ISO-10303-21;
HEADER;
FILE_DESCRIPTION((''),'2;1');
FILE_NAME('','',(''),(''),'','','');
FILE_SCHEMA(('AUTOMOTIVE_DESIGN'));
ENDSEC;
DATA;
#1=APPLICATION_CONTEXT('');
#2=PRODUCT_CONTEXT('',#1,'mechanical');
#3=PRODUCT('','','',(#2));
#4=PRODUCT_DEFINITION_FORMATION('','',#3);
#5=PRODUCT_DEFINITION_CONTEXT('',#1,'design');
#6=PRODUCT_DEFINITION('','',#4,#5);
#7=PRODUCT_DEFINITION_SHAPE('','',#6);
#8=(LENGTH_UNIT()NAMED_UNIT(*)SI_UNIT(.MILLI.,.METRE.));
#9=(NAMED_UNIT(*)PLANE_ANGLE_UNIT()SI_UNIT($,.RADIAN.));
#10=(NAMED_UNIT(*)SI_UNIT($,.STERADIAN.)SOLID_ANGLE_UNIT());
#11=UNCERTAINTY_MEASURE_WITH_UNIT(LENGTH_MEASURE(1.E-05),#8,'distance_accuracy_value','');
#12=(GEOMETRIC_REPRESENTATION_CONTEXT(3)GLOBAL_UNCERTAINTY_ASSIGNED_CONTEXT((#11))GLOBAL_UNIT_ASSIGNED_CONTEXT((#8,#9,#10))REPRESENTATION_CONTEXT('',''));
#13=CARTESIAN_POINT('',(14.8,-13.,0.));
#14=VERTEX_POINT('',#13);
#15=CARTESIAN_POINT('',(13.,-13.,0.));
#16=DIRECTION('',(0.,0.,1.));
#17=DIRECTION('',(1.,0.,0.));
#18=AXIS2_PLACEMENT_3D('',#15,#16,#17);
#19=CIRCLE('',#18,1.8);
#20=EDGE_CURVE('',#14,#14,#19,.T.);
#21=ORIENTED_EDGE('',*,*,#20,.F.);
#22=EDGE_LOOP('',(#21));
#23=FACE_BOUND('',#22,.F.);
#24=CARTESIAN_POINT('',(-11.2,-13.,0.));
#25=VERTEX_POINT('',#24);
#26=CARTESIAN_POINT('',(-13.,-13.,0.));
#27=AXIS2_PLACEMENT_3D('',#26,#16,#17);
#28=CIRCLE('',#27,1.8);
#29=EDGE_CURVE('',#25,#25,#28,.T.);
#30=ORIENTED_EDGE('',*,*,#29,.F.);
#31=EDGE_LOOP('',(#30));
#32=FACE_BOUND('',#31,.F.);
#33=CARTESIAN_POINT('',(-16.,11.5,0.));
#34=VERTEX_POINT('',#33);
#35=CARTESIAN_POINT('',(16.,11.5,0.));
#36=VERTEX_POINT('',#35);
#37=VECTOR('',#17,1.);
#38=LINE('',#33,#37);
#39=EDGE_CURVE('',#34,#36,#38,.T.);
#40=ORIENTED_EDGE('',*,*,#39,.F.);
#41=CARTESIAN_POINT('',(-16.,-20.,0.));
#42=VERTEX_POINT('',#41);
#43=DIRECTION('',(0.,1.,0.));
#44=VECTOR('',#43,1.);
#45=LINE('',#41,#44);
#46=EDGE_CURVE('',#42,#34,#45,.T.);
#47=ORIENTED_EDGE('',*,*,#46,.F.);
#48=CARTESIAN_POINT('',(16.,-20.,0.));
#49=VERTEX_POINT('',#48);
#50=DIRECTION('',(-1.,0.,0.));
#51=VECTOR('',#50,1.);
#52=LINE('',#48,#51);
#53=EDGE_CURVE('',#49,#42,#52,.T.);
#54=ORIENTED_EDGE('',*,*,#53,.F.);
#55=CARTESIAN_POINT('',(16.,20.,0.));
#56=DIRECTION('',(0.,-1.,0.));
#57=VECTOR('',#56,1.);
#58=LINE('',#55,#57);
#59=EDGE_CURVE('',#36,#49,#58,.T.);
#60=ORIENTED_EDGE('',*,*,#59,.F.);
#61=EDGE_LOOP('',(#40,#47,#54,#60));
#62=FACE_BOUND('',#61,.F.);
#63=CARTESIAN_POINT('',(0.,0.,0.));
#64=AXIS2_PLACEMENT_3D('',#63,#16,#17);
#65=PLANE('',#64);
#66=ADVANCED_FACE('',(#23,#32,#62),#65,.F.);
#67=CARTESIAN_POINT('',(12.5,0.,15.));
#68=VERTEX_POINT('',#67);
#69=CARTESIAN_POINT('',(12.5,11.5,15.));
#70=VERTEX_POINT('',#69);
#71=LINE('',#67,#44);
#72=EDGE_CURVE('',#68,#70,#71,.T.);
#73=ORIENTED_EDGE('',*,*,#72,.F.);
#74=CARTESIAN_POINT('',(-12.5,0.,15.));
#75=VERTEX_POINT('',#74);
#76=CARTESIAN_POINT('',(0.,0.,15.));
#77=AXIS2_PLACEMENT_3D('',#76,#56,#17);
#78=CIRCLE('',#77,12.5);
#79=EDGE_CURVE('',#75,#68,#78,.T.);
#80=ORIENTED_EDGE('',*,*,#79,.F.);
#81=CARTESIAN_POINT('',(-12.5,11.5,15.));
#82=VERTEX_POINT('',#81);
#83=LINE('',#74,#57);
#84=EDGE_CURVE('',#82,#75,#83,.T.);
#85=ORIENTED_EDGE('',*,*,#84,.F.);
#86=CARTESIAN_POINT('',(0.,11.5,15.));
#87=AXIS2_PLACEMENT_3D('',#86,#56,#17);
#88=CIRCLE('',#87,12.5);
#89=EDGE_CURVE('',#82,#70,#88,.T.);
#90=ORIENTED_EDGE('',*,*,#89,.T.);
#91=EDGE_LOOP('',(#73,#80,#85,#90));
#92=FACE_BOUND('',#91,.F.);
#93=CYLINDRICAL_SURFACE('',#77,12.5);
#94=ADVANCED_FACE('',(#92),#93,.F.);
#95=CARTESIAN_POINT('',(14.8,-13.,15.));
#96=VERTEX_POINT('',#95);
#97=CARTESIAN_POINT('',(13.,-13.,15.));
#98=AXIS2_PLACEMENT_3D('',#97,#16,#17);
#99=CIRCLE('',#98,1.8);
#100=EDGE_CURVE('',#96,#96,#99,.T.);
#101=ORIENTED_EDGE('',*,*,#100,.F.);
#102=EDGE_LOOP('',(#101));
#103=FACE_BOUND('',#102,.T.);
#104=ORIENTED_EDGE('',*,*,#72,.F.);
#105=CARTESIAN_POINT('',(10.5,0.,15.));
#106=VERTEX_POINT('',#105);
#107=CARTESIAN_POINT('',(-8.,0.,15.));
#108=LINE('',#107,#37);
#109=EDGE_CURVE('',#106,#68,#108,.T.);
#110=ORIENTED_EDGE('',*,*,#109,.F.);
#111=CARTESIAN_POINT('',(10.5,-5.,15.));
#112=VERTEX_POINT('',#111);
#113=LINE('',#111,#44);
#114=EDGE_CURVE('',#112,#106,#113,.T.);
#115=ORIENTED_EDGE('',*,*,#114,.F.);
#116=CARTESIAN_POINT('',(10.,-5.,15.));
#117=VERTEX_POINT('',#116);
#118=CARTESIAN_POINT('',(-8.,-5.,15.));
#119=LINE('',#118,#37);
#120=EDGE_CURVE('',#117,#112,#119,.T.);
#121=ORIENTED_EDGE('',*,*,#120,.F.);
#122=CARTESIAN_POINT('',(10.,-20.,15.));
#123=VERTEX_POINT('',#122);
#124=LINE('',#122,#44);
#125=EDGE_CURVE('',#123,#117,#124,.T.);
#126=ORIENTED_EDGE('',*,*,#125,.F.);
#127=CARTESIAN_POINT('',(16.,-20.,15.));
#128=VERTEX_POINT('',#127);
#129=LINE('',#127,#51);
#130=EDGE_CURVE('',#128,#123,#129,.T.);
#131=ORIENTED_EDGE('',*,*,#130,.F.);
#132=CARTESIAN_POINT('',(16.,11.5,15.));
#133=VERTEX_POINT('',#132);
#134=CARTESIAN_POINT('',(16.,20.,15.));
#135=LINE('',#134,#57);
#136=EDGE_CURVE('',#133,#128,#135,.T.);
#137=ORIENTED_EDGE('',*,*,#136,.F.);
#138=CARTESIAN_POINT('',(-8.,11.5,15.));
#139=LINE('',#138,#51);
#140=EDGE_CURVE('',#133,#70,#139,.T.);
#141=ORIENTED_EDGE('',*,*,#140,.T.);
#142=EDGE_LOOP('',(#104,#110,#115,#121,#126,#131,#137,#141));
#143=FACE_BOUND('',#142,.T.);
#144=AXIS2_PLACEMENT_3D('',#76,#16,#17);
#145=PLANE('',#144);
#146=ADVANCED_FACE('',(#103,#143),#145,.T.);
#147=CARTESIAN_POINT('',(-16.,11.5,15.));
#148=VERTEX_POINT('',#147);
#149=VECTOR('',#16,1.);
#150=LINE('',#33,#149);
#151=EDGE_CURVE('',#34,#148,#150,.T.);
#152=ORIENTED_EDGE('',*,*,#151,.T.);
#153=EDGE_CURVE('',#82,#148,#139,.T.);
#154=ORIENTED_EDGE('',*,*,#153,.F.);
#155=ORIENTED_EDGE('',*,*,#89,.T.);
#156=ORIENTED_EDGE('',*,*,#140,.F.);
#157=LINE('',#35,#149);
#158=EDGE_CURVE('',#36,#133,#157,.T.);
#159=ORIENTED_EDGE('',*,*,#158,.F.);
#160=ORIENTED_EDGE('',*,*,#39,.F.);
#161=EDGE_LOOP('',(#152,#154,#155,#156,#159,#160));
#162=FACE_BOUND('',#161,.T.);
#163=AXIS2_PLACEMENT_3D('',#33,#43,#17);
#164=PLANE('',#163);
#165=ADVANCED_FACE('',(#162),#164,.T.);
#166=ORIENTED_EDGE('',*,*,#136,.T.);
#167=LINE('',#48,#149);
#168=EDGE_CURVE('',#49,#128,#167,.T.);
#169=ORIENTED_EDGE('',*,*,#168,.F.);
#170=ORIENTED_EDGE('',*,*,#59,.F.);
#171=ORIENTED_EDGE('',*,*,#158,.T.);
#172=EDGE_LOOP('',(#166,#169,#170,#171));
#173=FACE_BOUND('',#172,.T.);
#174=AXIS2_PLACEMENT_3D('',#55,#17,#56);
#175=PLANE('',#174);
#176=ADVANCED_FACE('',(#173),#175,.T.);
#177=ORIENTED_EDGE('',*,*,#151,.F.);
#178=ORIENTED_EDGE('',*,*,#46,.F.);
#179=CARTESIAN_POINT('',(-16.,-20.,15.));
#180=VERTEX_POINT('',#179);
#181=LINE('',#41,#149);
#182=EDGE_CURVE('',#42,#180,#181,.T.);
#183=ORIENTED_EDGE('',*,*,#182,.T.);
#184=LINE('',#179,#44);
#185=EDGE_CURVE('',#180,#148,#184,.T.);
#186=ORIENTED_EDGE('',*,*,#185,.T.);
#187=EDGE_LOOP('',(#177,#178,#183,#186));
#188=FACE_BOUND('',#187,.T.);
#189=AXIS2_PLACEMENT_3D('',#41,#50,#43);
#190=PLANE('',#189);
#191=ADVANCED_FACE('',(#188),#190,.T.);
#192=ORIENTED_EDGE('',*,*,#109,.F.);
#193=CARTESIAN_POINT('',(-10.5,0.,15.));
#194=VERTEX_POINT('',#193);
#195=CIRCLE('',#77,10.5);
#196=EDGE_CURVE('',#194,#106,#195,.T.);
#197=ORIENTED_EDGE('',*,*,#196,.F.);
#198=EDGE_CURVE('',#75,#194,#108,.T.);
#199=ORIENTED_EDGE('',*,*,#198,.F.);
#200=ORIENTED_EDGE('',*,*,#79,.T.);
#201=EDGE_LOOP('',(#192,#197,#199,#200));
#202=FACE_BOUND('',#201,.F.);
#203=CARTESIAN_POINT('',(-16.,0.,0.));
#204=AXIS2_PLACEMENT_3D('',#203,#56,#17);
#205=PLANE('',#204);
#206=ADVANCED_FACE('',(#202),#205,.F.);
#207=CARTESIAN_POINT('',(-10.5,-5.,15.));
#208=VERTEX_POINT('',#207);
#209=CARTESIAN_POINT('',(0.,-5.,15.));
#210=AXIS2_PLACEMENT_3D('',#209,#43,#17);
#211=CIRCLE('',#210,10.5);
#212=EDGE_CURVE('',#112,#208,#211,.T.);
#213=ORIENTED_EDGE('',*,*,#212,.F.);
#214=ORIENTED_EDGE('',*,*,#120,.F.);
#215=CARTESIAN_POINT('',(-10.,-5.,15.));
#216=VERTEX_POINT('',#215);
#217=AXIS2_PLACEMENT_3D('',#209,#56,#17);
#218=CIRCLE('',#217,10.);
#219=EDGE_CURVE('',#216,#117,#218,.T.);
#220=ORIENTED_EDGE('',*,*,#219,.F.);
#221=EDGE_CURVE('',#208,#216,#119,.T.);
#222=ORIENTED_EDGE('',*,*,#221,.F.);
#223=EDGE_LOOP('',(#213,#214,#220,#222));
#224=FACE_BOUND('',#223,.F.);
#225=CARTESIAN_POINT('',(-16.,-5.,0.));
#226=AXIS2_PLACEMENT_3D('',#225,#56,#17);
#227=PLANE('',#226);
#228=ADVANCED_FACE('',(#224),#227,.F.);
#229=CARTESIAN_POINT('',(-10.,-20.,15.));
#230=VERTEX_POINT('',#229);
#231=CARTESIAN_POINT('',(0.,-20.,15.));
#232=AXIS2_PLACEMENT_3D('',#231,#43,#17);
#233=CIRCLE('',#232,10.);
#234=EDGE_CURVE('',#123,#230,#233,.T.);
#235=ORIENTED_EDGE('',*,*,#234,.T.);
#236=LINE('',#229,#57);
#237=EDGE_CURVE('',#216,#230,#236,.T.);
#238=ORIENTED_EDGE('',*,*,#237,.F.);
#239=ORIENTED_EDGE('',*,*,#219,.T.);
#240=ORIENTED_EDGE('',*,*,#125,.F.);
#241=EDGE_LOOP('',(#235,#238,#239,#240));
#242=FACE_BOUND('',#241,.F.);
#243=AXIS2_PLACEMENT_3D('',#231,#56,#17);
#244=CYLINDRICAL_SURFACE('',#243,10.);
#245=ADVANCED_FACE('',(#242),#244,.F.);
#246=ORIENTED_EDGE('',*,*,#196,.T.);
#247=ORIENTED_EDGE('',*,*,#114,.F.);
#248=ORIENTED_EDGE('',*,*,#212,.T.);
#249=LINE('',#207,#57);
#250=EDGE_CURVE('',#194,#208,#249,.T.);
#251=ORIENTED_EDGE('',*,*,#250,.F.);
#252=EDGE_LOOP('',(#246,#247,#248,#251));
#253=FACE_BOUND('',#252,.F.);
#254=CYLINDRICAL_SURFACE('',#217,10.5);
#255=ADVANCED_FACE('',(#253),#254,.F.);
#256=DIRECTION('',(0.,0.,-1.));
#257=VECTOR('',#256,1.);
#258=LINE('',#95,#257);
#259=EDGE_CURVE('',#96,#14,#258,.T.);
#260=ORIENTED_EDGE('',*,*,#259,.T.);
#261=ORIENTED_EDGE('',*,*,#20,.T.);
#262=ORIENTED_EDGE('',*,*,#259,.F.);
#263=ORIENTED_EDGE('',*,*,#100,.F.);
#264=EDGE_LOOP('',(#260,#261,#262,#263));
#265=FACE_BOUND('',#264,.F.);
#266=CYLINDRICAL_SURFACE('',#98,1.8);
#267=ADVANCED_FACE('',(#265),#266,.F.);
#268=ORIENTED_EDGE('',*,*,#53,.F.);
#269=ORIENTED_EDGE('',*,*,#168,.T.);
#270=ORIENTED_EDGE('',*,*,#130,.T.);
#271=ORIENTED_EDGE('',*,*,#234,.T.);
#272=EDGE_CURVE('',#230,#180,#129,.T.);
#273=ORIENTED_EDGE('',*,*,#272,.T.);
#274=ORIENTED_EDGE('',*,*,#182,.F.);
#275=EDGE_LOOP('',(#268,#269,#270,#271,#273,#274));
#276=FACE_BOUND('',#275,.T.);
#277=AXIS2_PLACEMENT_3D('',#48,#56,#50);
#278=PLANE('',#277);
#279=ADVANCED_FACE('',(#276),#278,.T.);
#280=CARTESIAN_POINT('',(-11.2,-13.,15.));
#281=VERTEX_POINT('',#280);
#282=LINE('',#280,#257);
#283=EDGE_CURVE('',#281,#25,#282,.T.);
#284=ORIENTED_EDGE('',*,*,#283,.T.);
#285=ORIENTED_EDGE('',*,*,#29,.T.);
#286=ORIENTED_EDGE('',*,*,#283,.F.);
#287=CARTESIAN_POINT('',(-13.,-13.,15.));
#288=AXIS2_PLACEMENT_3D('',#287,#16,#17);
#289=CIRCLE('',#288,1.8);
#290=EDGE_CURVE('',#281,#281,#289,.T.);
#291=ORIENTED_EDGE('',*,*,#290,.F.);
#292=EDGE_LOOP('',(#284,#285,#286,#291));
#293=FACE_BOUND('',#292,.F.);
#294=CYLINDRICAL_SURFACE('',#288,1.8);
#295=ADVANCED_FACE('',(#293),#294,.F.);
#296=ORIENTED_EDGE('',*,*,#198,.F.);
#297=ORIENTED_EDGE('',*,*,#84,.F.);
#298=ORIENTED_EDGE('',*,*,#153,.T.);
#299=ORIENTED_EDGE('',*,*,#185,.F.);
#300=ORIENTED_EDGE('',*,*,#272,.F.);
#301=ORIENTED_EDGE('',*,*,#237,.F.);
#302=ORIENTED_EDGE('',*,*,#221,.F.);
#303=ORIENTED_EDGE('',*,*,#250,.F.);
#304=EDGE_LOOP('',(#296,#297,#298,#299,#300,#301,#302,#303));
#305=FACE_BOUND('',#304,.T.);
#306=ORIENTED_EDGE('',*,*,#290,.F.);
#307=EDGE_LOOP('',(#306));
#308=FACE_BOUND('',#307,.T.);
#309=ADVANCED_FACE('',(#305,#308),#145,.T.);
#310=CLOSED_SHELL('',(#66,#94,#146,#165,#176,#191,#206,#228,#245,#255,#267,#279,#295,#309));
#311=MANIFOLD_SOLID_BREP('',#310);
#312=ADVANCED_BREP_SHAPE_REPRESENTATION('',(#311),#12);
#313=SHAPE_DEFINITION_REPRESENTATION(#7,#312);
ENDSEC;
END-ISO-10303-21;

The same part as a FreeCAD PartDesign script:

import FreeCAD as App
import Part
import Sketcher
Q = App.Units.Quantity


def add_polygon(sketch, points):
    """Adds a closed chain of lines whose ends are joined by coincident constraints."""
    first, n = sketch.GeometryCount, len(points)
    for a, b in zip(points, points[1:] + points[:1]):
        sketch.addGeometry(Part.LineSegment(App.Vector(*a, 0), App.Vector(*b, 0)), False)
    for i in range(n):
        sketch.addConstraint(Sketcher.Constraint("Coincident", first + i, 2, first + (i + 1) % n, 1))

doc = App.newDocument("Part")
body = doc.addObject("PartDesign::Body", "Body")

# Sketch on XY plane
sketch1 = body.newObject("Sketcher::SketchObject", "Sketch")
sketch1.AttachmentSupport = (doc.getObject("XY_Plane"), [""])
sketch1.MapMode = "FlatFace"
add_polygon(sketch1, [(16, 20), (-16, 20), (-16, -20), (16, -20)])  # lines 0-3
sketch1.addConstraint(Sketcher.Constraint("Horizontal", 0))
sketch1.addConstraint(Sketcher.Constraint("Vertical", 1))
sketch1.addConstraint(Sketcher.Constraint("Horizontal", 2))
sketch1.addConstraint(Sketcher.Constraint("Vertical", 3))
sketch1.addConstraint(Sketcher.Constraint("Symmetric", 0, 2, 2, 2, -1, 1))
sketch1.addConstraint(Sketcher.Constraint("DistanceX", 0, 2, 0, 1, Q("32 mm")))
sketch1.addConstraint(Sketcher.Constraint("DistanceY", 1, 2, 1, 1, Q("40 mm")))
pad1 = body.newObject("PartDesign::Pad", "Pad")
pad1.Profile = sketch1
pad1.Length = 15

# Sketch on XZ plane
sketch2 = body.newObject("Sketcher::SketchObject", "Sketch001")
sketch2.AttachmentSupport = (doc.getObject("XZ_Plane"), [""])
sketch2.MapMode = "FlatFace"
sketch2.AttachmentOffset = App.Placement(App.Vector(0, 0, 20), App.Rotation())
sketch2.addGeometry(Part.Circle(App.Vector(0, 15, 0), App.Vector(0, 0, 1), 10), False)
sketch2.addConstraint(Sketcher.Constraint("PointOnObject", 0, 3, -2))
sketch2.addConstraint(Sketcher.Constraint("Diameter", 0, Q("20 mm")))
sketch2.addConstraint(Sketcher.Constraint("DistanceY", -1, 1, 0, 3, Q("15 mm")))
pocket1 = body.newObject("PartDesign::Pocket", "Pocket")
pocket1.Profile = sketch2
pocket1.Length = 15

# Sketch on XZ plane
sketch3 = body.newObject("Sketcher::SketchObject", "Sketch002")
sketch3.AttachmentSupport = (doc.getObject("XZ_Plane"), [""])
sketch3.MapMode = "FlatFace"
sketch3.AttachmentOffset = App.Placement(App.Vector(0, 0, 5), App.Rotation())
sketch3.addGeometry(Part.Circle(App.Vector(0, 15, 0), App.Vector(0, 0, 1), 10), False)
sketch3.addConstraint(Sketcher.Constraint("PointOnObject", 0, 3, -2))
sketch3.addConstraint(Sketcher.Constraint("Diameter", 0, Q("21 mm")))
sketch3.addConstraint(Sketcher.Constraint("DistanceY", -1, 1, 0, 3, Q("15 mm")))
pocket2 = body.newObject("PartDesign::Pocket", "Pocket001")
pocket2.Profile = sketch3
pocket2.Length = 5

# Sketch on XZ plane
sketch4 = body.newObject("Sketcher::SketchObject", "Sketch003")
sketch4.AttachmentSupport = (doc.getObject("XZ_Plane"), [""])
sketch4.MapMode = "FlatFace"
sketch4.addGeometry(Part.Circle(App.Vector(0, 15, 0), App.Vector(0, 0, 1), 12), False)
sketch4.addConstraint(Sketcher.Constraint("PointOnObject", 0, 3, -2))
sketch4.addConstraint(Sketcher.Constraint("Diameter", 0, Q("25 mm")))
sketch4.addConstraint(Sketcher.Constraint("DistanceY", -1, 1, 0, 3, Q("15 mm")))
pocket3 = body.newObject("PartDesign::Pocket", "Pocket002")
pocket3.Profile = sketch4
pocket3.Type = "ThroughAll"

# Sketch on XY plane
sketch5 = body.newObject("Sketcher::SketchObject", "Sketch004")
sketch5.AttachmentSupport = (doc.getObject("XY_Plane"), [""])
sketch5.MapMode = "FlatFace"
sketch5.AttachmentOffset = App.Placement(App.Vector(0, 0, 15), App.Rotation())
sketch5.addGeometry(Part.Circle(App.Vector(-13, -13, 0), App.Vector(0, 0, 1), 1.8), False)
sketch5.addGeometry(Part.Circle(App.Vector(13, -13, 0), App.Vector(0, 0, 1), 1.8), False)
sketch5.addConstraint(Sketcher.Constraint("Equal", 0, 1))
sketch5.addConstraint(Sketcher.Constraint("Symmetric", 0, 3, 1, 3, -2))
sketch5.addConstraint(Sketcher.Constraint("Diameter", 0, Q("3.6 mm")))
sketch5.addConstraint(Sketcher.Constraint("DistanceX", 0, 3, -1, 1, Q("13 mm")))
sketch5.addConstraint(Sketcher.Constraint("DistanceY", 0, 3, -1, 1, Q("13 mm")))
pocket4 = body.newObject("PartDesign::Pocket", "Pocket003")
pocket4.Profile = sketch5
pocket4.Type = "ThroughAll"

# Sketch on XY plane
sketch6 = body.newObject("Sketcher::SketchObject", "Sketch005")
sketch6.AttachmentSupport = (doc.getObject("XY_Plane"), [""])
sketch6.MapMode = "FlatFace"
add_polygon(sketch6, [(-16, 20), (16, 20), (16, 12), (-16, 12)])  # lines 0-3
sketch6.addConstraint(Sketcher.Constraint("Horizontal", 0))
sketch6.addConstraint(Sketcher.Constraint("Vertical", 1))
sketch6.addConstraint(Sketcher.Constraint("Horizontal", 2))
sketch6.addConstraint(Sketcher.Constraint("Vertical", 3))
sketch6.addConstraint(Sketcher.Constraint("DistanceY", 1, 2, 1, 1, Q("8.5 mm")))
sketch6.addConstraint(Sketcher.Constraint("DistanceX", 0, 1, 0, 2, Q("32 mm")))
sketch6.addConstraint(Sketcher.Constraint("DistanceX", -1, 1, 0, 2, Q("16 mm")))
sketch6.addConstraint(Sketcher.Constraint("DistanceY", -1, 1, 0, 2, Q("20 mm")))
pocket5 = body.newObject("PartDesign::Pocket", "Pocket004")
pocket5.Profile = sketch6
pocket5.Length = 22.5
pocket5.Reversed = True

doc.recompute()
